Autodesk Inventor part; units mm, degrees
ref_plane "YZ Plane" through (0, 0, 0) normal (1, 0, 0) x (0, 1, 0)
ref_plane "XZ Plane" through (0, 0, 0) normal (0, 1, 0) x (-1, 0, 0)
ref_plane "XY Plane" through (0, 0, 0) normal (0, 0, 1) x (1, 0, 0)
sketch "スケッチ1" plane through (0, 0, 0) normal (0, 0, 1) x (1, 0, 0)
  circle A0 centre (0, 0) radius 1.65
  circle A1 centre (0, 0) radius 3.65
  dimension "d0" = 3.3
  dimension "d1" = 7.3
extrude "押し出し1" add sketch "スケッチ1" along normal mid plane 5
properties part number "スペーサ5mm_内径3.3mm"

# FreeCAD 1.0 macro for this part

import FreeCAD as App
import Part
import Sketcher

doc = App.newDocument("Part")
params = doc.addObject("Spreadsheet::Sheet", "Params")
for row, (alias, value) in enumerate([
    ("sketch1_diameter", "7.3 mm"),
    ("sketch1_diameter2", "3.3 mm"),
    ("pad1_length", "5 mm"),
], start=1):
    params.set(f"A{row}", alias)
    params.set(f"B{row}", "=" + value)
    params.setAlias(f"B{row}", alias)

body = doc.addObject("PartDesign::Body", "Body")

# Sketch on XY plane
sketch1 = doc.addObject("Sketcher::SketchObject", "Sketch")
body.addObject(sketch1)
sketch1.AttachmentSupport = (doc.XY_Plane, [""])
sketch1.MapMode = "FlatFace"
sketch1.addGeometry(Part.Circle(App.Vector(0, 0, 0), App.Vector(0, 0, 1), 3.6), False)
sketch1.addGeometry(Part.Circle(App.Vector(0, 0, 0), App.Vector(0, 0, 1), 1.6), False)
sketch1.addConstraint(Sketcher.Constraint("Coincident", 0, 3, -1, 1))
sketch1.addConstraint(Sketcher.Constraint("Coincident", 1, 3, -1, 1))
sketch1.addConstraint(Sketcher.Constraint("Diameter", 0, 7.3))
sketch1.addConstraint(Sketcher.Constraint("Diameter", 1, 3.3))
sketch1.setExpression("Constraints[2]", "Params.sketch1_diameter")
sketch1.setExpression("Constraints[3]", "Params.sketch1_diameter2")
pad1 = doc.addObject("PartDesign::Pad", "Pad")
body.addObject(pad1)
pad1.Profile = sketch1
pad1.setExpression("Length", "Params.pad1_length")
pad1.Midplane = True

doc.recompute()
